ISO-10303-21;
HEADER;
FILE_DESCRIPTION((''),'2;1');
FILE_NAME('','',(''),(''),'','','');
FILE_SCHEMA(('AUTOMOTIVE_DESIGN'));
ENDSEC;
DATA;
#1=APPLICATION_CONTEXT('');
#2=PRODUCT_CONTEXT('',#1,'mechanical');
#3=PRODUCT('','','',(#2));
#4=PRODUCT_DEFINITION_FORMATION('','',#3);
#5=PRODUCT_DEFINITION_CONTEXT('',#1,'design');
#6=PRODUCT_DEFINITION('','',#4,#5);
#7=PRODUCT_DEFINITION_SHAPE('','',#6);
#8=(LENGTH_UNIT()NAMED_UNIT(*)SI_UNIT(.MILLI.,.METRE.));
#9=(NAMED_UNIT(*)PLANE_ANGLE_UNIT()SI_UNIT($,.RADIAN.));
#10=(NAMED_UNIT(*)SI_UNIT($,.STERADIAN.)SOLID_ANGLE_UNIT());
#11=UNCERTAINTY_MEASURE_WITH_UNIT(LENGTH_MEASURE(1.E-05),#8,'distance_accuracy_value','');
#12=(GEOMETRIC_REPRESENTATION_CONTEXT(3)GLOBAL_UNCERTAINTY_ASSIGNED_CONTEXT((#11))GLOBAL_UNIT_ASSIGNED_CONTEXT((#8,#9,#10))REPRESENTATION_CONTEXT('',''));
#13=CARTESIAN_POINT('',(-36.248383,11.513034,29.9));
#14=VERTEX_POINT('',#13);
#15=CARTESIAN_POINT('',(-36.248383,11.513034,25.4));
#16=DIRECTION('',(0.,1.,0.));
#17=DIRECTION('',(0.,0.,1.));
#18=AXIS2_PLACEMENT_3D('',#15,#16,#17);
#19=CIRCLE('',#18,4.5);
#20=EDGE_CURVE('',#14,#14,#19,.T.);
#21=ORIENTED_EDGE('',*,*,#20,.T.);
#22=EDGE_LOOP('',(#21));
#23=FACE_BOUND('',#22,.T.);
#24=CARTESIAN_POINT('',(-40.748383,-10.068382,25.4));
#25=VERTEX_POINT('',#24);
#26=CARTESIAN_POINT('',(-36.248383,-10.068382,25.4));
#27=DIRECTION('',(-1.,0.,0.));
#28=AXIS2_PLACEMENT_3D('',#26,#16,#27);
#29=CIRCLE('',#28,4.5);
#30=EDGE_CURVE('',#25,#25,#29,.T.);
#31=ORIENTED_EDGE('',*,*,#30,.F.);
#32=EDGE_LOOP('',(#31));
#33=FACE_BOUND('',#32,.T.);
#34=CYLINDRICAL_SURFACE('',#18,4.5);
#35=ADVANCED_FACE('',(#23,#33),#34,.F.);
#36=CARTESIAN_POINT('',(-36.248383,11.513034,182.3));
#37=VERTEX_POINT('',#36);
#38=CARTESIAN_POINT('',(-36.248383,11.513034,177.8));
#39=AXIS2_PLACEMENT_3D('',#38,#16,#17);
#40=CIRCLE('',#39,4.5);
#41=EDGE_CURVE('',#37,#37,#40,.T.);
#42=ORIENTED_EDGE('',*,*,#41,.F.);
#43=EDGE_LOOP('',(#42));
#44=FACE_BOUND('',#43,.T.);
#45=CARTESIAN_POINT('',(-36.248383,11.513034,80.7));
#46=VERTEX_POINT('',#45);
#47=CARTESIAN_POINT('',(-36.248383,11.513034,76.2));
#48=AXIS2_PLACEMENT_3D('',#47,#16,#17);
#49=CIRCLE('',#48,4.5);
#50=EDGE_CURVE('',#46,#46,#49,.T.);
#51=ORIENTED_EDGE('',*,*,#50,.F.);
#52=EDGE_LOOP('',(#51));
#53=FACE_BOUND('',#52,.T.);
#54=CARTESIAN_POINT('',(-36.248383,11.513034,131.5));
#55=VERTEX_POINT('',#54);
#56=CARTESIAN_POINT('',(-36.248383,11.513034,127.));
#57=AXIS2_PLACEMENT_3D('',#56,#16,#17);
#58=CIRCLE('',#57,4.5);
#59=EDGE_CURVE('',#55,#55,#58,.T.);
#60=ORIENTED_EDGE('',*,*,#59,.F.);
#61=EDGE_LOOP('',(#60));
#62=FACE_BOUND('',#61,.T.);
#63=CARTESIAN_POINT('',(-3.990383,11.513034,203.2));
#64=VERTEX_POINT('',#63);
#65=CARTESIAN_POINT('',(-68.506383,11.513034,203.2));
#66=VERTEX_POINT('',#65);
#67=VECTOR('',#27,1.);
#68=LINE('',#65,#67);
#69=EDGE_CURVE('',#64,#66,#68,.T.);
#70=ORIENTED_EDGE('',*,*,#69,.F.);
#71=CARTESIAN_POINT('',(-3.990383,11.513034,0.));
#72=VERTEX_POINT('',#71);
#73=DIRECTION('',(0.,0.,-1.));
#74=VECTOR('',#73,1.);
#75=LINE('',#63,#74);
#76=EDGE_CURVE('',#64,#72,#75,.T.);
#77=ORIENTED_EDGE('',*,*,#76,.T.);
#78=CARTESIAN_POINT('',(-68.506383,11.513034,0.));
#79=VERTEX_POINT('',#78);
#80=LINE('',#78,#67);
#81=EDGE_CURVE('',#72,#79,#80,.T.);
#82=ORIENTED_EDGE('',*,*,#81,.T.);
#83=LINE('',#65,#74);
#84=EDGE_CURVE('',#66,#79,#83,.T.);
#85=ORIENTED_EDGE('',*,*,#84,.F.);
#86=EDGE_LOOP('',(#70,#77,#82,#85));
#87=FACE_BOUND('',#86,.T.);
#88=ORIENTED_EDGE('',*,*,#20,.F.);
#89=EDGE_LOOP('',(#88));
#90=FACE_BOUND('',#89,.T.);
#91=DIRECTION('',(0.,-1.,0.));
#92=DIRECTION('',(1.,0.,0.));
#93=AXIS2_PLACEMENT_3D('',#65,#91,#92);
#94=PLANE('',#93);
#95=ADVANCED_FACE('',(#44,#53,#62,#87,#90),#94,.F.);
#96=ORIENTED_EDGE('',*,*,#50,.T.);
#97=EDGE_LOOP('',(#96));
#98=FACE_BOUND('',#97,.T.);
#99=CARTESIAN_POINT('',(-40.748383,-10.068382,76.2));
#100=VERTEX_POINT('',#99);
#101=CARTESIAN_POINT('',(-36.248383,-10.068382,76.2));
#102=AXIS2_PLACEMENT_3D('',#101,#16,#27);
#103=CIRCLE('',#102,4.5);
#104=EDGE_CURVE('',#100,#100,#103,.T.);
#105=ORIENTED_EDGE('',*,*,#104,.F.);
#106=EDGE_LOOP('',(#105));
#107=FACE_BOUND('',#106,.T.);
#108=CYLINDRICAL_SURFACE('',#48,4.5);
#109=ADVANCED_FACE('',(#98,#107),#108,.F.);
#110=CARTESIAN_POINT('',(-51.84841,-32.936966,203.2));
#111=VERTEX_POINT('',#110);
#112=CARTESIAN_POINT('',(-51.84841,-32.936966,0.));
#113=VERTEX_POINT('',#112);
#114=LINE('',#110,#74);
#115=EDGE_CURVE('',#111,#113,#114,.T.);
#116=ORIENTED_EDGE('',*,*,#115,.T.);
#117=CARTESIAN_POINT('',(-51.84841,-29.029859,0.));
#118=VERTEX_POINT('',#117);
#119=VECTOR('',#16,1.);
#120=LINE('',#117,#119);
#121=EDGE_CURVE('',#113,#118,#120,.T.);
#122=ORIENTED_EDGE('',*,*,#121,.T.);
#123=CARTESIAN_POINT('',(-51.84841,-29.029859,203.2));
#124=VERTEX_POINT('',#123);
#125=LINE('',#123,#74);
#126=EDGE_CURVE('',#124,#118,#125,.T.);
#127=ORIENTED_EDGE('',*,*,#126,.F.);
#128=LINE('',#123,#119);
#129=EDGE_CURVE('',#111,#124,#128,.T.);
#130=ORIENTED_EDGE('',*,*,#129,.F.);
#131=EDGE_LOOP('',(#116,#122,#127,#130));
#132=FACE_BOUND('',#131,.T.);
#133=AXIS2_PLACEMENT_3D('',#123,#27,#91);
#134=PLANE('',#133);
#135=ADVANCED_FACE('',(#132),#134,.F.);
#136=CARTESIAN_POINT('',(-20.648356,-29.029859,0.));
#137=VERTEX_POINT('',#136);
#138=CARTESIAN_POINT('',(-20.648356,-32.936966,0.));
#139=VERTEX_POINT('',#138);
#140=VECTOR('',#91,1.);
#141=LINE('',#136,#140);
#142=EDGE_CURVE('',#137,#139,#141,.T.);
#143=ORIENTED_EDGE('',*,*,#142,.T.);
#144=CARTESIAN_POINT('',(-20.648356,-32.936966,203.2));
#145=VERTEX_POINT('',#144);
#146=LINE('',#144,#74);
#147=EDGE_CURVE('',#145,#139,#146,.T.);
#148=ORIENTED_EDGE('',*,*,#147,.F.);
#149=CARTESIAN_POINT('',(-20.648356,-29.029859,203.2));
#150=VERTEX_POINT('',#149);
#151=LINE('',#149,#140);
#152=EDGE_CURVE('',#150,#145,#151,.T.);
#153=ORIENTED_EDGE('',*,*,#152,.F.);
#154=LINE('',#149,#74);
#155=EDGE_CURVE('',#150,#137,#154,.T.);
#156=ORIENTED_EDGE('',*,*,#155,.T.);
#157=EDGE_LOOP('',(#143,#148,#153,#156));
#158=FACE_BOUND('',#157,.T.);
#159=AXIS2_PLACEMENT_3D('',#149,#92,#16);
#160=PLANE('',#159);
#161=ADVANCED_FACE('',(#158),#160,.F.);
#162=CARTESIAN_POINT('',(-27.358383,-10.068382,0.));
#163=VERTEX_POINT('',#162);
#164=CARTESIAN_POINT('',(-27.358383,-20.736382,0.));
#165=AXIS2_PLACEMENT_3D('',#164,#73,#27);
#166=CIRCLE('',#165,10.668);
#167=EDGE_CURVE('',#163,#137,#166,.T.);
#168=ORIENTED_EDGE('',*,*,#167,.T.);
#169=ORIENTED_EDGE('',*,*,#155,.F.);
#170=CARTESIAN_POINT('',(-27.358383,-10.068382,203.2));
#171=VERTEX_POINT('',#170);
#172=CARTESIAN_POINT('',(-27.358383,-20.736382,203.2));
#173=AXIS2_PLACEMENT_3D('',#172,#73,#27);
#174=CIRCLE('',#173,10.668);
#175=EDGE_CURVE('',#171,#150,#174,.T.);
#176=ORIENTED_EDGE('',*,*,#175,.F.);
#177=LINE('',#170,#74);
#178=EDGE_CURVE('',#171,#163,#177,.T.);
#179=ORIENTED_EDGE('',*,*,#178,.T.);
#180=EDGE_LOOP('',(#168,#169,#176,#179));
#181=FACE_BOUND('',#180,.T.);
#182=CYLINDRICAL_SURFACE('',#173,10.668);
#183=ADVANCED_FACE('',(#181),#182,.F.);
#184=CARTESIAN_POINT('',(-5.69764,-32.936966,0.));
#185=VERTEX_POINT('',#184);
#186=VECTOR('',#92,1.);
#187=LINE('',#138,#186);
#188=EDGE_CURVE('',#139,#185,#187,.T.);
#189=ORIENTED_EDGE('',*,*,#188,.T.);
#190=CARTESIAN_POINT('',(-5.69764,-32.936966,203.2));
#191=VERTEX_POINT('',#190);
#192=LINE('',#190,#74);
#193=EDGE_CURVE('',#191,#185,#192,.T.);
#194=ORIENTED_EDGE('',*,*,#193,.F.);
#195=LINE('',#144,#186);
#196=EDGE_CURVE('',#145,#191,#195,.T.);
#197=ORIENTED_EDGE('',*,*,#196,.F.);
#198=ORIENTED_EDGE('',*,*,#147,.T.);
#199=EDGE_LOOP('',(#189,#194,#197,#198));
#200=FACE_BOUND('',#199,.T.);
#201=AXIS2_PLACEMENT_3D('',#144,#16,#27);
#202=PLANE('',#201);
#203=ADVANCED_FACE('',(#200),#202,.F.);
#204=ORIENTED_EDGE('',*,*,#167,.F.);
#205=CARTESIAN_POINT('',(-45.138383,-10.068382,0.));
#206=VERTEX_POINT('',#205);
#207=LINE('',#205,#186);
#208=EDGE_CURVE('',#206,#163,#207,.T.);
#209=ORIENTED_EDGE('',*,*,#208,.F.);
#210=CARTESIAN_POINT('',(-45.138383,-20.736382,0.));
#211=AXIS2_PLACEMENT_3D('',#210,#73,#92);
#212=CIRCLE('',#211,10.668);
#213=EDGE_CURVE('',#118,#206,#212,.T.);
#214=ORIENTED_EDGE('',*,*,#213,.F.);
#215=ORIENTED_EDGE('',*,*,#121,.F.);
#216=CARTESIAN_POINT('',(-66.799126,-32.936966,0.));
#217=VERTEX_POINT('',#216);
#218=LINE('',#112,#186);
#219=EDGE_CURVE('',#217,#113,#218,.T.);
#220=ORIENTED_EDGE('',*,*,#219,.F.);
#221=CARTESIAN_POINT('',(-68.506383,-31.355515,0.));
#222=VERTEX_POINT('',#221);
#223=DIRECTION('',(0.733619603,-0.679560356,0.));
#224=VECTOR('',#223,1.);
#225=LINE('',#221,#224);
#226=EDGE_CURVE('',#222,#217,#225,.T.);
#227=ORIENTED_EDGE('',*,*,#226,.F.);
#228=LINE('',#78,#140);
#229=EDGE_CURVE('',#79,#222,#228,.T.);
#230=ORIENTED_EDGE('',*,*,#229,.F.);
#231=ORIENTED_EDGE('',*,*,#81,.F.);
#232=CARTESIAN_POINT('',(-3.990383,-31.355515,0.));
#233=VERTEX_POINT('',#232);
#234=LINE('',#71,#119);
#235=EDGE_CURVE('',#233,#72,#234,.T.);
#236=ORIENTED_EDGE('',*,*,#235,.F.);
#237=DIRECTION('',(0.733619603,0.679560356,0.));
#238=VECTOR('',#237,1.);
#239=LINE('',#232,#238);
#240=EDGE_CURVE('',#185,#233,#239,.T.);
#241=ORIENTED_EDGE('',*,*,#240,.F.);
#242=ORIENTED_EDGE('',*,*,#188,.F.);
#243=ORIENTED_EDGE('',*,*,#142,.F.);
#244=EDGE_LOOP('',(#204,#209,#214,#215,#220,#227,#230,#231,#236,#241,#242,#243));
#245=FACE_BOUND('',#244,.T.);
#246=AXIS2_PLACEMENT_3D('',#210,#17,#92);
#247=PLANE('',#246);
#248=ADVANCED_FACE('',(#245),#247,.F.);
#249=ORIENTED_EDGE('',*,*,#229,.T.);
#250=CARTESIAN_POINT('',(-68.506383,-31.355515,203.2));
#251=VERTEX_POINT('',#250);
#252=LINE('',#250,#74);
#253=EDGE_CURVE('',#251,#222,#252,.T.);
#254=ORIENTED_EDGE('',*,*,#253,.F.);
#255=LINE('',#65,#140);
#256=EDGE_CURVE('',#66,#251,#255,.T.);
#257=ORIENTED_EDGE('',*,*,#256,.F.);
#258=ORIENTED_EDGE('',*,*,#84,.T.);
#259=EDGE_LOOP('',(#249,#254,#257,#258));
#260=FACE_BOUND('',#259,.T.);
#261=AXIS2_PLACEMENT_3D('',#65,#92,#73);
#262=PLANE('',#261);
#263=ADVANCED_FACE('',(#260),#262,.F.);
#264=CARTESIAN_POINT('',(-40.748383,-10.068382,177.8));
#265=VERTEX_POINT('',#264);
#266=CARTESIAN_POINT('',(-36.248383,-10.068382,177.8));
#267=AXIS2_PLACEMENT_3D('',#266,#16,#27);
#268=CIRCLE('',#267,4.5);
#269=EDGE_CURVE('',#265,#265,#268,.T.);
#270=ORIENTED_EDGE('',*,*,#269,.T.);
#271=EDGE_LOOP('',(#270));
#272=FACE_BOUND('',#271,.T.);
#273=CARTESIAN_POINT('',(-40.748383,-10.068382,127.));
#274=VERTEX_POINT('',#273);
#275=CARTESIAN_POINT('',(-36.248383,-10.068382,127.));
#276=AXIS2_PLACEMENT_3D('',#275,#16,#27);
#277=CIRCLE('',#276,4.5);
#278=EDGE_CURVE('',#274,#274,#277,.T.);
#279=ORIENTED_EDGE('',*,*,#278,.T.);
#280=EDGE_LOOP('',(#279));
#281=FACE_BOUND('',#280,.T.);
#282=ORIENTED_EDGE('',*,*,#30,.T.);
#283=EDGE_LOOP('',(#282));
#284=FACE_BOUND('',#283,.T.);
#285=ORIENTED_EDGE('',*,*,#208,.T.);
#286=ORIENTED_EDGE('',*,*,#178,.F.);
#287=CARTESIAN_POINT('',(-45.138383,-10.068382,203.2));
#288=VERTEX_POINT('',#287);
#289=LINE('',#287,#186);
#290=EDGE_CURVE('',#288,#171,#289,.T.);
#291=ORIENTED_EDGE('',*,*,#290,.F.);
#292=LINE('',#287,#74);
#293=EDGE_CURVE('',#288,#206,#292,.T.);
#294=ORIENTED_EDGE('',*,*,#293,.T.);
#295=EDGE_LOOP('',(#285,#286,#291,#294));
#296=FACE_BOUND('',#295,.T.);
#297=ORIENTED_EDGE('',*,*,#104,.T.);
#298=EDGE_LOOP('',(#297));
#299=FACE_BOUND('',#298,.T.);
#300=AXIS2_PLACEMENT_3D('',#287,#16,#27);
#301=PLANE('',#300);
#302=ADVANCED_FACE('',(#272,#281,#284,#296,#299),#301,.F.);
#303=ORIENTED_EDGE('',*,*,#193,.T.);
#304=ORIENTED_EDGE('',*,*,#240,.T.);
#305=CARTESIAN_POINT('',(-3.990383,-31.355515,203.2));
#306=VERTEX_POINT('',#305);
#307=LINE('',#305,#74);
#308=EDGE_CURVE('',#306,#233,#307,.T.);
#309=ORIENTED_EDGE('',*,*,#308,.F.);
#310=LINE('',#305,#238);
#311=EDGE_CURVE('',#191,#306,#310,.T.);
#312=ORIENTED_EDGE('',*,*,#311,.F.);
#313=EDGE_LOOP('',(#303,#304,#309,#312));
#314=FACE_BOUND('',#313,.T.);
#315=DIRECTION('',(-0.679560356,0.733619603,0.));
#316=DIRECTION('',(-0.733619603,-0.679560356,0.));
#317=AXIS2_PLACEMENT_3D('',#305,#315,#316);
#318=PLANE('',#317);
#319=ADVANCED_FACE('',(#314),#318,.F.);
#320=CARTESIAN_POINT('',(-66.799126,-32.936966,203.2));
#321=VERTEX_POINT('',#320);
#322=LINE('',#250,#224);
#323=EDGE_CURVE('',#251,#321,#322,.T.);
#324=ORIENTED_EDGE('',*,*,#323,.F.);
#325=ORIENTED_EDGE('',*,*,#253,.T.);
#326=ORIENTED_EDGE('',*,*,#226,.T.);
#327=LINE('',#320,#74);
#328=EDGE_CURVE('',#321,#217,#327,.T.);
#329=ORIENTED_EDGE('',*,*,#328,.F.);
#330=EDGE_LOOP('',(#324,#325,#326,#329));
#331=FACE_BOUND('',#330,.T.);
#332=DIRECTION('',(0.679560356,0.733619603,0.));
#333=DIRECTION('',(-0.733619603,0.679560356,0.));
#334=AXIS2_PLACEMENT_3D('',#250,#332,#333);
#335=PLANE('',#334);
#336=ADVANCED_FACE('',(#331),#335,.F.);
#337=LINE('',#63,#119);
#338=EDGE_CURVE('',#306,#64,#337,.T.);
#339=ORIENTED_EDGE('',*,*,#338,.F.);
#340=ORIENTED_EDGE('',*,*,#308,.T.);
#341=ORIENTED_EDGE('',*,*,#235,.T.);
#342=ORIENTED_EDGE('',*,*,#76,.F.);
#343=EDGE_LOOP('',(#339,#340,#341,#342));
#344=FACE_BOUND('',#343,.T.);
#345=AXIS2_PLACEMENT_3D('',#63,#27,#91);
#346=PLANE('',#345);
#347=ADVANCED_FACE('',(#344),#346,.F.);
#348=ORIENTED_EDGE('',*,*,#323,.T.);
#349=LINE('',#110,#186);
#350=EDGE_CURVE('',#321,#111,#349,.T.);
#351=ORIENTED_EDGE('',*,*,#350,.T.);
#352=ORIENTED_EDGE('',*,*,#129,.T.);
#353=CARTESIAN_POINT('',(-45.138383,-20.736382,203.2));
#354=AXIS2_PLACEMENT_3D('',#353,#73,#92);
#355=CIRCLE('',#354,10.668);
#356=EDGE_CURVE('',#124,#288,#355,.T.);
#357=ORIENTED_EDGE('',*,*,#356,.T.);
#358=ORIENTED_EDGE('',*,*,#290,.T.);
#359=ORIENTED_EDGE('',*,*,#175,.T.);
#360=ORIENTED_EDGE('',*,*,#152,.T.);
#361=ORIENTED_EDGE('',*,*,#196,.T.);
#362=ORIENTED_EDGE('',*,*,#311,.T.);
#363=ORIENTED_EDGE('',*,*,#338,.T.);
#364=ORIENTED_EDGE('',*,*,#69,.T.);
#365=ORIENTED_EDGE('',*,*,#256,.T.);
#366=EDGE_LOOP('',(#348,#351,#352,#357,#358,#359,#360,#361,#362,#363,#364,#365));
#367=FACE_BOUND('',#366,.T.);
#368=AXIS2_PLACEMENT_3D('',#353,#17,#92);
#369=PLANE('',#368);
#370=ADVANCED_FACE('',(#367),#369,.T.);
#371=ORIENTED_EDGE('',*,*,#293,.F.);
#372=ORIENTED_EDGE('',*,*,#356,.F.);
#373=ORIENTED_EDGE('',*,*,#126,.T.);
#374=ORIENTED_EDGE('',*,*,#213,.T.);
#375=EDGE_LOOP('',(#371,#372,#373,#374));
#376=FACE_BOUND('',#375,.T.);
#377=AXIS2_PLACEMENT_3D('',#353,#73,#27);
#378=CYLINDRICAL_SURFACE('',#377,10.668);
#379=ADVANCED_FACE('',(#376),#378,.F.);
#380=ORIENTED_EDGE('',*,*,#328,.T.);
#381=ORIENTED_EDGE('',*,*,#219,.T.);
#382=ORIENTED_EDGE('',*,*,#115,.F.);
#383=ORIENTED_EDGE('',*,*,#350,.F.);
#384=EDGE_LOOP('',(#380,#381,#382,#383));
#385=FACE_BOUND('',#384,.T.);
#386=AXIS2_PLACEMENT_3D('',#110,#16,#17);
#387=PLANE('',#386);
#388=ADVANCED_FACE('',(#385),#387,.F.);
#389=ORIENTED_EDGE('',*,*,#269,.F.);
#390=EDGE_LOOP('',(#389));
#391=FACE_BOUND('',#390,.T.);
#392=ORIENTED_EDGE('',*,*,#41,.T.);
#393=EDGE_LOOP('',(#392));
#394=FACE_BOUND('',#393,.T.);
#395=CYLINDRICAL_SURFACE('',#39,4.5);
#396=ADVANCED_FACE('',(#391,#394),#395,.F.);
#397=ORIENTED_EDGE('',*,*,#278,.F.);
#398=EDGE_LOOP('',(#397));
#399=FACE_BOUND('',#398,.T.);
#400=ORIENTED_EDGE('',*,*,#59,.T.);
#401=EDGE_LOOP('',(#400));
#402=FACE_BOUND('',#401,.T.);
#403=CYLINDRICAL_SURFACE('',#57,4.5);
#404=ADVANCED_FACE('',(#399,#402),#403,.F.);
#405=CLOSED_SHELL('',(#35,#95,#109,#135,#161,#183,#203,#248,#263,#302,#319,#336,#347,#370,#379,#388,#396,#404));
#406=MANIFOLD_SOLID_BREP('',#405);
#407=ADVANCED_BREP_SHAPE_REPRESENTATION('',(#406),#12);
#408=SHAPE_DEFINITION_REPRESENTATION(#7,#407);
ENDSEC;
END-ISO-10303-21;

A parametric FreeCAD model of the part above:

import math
import FreeCAD as App
import Part
import Sketcher
Q = App.Units.Quantity

doc = App.newDocument("Part")
body = doc.addObject("PartDesign::Body", "Body")

sketch1 = body.newObject("Sketcher::SketchObject", "Sketch")
sketch1.AttachmentSupport = (doc.getObject("XY_Plane"), [""])
sketch1.MapMode = "FlatFace"
sketch1.addGeometry([
    Part.LineSegment(App.Vector(-51.8, -32.9, 0), App.Vector(-51.8, -29, 0)),
    Part.ArcOfCircle(Part.Circle(App.Vector(-45.1, -20.7, 0), App.Vector(0, 0, 1), 10.7), math.radians(90), math.radians(231)),
    Part.LineSegment(App.Vector(-45.1, -10.1, 0), App.Vector(-27.4, -10.1, 0)),
    Part.ArcOfCircle(Part.Circle(App.Vector(-27.4, -20.7, 0), App.Vector(0, 0, 1), 10.7), math.radians(-51), math.radians(90)),
    Part.LineSegment(App.Vector(-20.6, -29, 0), App.Vector(-20.6, -32.9, 0)),
    Part.LineSegment(App.Vector(-20.6, -32.9, 0), App.Vector(-5.7, -32.9, 0)),
    Part.LineSegment(App.Vector(-5.7, -32.9, 0), App.Vector(-4, -31.4, 0)),
    Part.LineSegment(App.Vector(-4, -31.4, 0), App.Vector(-4, 11.5, 0)),
    Part.LineSegment(App.Vector(-4, 11.5, 0), App.Vector(-68.5, 11.5, 0)),
    Part.LineSegment(App.Vector(-68.5, 11.5, 0), App.Vector(-68.5, -31.4, 0)),
    Part.LineSegment(App.Vector(-68.5, -31.4, 0), App.Vector(-66.8, -32.9, 0)),
    Part.LineSegment(App.Vector(-66.8, -32.9, 0), App.Vector(-51.8, -32.9, 0)),
], False)
sketch1.addConstraint([
    Sketcher.Constraint("Coincident", 0, 2, 1, 2),
    Sketcher.Constraint("Tangent", 1, 1, 2, 1),
    Sketcher.Constraint("Tangent", 2, 2, 3, 2),
    Sketcher.Constraint("Coincident", 3, 1, 4, 1),
    Sketcher.Constraint("Coincident", 4, 2, 5, 1),
    Sketcher.Constraint("Coincident", 5, 2, 6, 1),
    Sketcher.Constraint("Coincident", 6, 2, 7, 1),
    Sketcher.Constraint("Coincident", 7, 2, 8, 1),
    Sketcher.Constraint("Coincident", 8, 2, 9, 1),
    Sketcher.Constraint("Coincident", 9, 2, 10, 1),
    Sketcher.Constraint("Coincident", 10, 2, 11, 1),
    Sketcher.Constraint("Coincident", 11, 2, 0, 1),
    Sketcher.Constraint("Vertical", 0),
    Sketcher.Constraint("Horizontal", 2),
    Sketcher.Constraint("Vertical", 4),
    Sketcher.Constraint("Horizontal", 5),
    Sketcher.Constraint("Vertical", 7),
    Sketcher.Constraint("Horizontal", 8),
    Sketcher.Constraint("Vertical", 9),
    Sketcher.Constraint("Horizontal", 11),
    Sketcher.Constraint("Equal", 1, 3),
    Sketcher.Constraint("Horizontal", 0, 2, 3, 1),
    Sketcher.Constraint("Horizontal", 6, 2, 9, 2),
    Sketcher.Constraint("Horizontal", 5, 2, 10, 2),
    Sketcher.Constraint("Equal", 5, 11),
    Sketcher.Constraint("Equal", 6, 10),
    Sketcher.Constraint("Radius", 1, Q("0.42 in")),
    Sketcher.Constraint("DistanceX", 2, 1, 2, 2, Q("0.7 in")),
    Sketcher.Constraint("DistanceX", 8, 2, 8, 1, Q("2.54 in")),
    Sketcher.Constraint("DistanceY", 5, 2, 7, 2, Q("1.75 in")),
    Sketcher.Constraint("DistanceY", 7, 1, 7, 2, Q("42.868548 mm")),
    Sketcher.Constraint("Distance", 6, Q("2.327169 mm")),
    Sketcher.Constraint("DistanceX", 5, 1, 5, 2, Q("14.950717 mm")),
    Sketcher.Constraint("DistanceY", 0, 1, 0, 2, Q("3.907107 mm")),
    Sketcher.Constraint("DistanceX", 0, 2, -1, 1, Q("51.84841 mm")),
    Sketcher.Constraint("DistanceY", 0, 2, -1, 1, Q("29.029859 mm")),
])
pad1 = body.newObject("PartDesign::Pad", "Pad")
pad1.Profile = sketch1
pad1.Length = Q("8 in")

sketch2 = body.newObject("Sketcher::SketchObject", "Sketch001")
sketch2.AttachmentSupport = (doc.getObject("XZ_Plane"), [""])
sketch2.MapMode = "FlatFace"
sketch2.AttachmentOffset = App.Placement(App.Vector(0, 0, -11.513034), App.Rotation())
sketch2.addGeometry(Part.Circle(App.Vector(-36.2, 177.8, 0), App.Vector(0, 0, 1), 4.5), False)
sketch2.addConstraint([
    Sketcher.Constraint("DistanceY", -1, 1, 0, 3, Q("7 in")),
    Sketcher.Constraint("Diameter", 0, Q("9 mm")),
    Sketcher.Constraint("DistanceX", 0, 3, -1, 1, Q("36.248383 mm")),
])
doc.recompute()
hole = body.newObject("PartDesign::Hole", "Hole")
hole.Profile = sketch2
hole.ThreadType = "None"
hole.Diameter = 9
hole.DepthType = "ThroughAll"
hole.Reversed = True
doc.recompute()

linearpattern = body.newObject("PartDesign::LinearPattern", "LinearPattern")
linearpattern.Originals = [hole]
linearpattern.Direction = (doc.getObject("Z_Axis"), [""])
linearpattern.Mode = "offset"
linearpattern.Offset = Q("2 in")
linearpattern.Occurrences = 4
linearpattern.Reversed = True
body.Tip = linearpattern

doc.recompute()
